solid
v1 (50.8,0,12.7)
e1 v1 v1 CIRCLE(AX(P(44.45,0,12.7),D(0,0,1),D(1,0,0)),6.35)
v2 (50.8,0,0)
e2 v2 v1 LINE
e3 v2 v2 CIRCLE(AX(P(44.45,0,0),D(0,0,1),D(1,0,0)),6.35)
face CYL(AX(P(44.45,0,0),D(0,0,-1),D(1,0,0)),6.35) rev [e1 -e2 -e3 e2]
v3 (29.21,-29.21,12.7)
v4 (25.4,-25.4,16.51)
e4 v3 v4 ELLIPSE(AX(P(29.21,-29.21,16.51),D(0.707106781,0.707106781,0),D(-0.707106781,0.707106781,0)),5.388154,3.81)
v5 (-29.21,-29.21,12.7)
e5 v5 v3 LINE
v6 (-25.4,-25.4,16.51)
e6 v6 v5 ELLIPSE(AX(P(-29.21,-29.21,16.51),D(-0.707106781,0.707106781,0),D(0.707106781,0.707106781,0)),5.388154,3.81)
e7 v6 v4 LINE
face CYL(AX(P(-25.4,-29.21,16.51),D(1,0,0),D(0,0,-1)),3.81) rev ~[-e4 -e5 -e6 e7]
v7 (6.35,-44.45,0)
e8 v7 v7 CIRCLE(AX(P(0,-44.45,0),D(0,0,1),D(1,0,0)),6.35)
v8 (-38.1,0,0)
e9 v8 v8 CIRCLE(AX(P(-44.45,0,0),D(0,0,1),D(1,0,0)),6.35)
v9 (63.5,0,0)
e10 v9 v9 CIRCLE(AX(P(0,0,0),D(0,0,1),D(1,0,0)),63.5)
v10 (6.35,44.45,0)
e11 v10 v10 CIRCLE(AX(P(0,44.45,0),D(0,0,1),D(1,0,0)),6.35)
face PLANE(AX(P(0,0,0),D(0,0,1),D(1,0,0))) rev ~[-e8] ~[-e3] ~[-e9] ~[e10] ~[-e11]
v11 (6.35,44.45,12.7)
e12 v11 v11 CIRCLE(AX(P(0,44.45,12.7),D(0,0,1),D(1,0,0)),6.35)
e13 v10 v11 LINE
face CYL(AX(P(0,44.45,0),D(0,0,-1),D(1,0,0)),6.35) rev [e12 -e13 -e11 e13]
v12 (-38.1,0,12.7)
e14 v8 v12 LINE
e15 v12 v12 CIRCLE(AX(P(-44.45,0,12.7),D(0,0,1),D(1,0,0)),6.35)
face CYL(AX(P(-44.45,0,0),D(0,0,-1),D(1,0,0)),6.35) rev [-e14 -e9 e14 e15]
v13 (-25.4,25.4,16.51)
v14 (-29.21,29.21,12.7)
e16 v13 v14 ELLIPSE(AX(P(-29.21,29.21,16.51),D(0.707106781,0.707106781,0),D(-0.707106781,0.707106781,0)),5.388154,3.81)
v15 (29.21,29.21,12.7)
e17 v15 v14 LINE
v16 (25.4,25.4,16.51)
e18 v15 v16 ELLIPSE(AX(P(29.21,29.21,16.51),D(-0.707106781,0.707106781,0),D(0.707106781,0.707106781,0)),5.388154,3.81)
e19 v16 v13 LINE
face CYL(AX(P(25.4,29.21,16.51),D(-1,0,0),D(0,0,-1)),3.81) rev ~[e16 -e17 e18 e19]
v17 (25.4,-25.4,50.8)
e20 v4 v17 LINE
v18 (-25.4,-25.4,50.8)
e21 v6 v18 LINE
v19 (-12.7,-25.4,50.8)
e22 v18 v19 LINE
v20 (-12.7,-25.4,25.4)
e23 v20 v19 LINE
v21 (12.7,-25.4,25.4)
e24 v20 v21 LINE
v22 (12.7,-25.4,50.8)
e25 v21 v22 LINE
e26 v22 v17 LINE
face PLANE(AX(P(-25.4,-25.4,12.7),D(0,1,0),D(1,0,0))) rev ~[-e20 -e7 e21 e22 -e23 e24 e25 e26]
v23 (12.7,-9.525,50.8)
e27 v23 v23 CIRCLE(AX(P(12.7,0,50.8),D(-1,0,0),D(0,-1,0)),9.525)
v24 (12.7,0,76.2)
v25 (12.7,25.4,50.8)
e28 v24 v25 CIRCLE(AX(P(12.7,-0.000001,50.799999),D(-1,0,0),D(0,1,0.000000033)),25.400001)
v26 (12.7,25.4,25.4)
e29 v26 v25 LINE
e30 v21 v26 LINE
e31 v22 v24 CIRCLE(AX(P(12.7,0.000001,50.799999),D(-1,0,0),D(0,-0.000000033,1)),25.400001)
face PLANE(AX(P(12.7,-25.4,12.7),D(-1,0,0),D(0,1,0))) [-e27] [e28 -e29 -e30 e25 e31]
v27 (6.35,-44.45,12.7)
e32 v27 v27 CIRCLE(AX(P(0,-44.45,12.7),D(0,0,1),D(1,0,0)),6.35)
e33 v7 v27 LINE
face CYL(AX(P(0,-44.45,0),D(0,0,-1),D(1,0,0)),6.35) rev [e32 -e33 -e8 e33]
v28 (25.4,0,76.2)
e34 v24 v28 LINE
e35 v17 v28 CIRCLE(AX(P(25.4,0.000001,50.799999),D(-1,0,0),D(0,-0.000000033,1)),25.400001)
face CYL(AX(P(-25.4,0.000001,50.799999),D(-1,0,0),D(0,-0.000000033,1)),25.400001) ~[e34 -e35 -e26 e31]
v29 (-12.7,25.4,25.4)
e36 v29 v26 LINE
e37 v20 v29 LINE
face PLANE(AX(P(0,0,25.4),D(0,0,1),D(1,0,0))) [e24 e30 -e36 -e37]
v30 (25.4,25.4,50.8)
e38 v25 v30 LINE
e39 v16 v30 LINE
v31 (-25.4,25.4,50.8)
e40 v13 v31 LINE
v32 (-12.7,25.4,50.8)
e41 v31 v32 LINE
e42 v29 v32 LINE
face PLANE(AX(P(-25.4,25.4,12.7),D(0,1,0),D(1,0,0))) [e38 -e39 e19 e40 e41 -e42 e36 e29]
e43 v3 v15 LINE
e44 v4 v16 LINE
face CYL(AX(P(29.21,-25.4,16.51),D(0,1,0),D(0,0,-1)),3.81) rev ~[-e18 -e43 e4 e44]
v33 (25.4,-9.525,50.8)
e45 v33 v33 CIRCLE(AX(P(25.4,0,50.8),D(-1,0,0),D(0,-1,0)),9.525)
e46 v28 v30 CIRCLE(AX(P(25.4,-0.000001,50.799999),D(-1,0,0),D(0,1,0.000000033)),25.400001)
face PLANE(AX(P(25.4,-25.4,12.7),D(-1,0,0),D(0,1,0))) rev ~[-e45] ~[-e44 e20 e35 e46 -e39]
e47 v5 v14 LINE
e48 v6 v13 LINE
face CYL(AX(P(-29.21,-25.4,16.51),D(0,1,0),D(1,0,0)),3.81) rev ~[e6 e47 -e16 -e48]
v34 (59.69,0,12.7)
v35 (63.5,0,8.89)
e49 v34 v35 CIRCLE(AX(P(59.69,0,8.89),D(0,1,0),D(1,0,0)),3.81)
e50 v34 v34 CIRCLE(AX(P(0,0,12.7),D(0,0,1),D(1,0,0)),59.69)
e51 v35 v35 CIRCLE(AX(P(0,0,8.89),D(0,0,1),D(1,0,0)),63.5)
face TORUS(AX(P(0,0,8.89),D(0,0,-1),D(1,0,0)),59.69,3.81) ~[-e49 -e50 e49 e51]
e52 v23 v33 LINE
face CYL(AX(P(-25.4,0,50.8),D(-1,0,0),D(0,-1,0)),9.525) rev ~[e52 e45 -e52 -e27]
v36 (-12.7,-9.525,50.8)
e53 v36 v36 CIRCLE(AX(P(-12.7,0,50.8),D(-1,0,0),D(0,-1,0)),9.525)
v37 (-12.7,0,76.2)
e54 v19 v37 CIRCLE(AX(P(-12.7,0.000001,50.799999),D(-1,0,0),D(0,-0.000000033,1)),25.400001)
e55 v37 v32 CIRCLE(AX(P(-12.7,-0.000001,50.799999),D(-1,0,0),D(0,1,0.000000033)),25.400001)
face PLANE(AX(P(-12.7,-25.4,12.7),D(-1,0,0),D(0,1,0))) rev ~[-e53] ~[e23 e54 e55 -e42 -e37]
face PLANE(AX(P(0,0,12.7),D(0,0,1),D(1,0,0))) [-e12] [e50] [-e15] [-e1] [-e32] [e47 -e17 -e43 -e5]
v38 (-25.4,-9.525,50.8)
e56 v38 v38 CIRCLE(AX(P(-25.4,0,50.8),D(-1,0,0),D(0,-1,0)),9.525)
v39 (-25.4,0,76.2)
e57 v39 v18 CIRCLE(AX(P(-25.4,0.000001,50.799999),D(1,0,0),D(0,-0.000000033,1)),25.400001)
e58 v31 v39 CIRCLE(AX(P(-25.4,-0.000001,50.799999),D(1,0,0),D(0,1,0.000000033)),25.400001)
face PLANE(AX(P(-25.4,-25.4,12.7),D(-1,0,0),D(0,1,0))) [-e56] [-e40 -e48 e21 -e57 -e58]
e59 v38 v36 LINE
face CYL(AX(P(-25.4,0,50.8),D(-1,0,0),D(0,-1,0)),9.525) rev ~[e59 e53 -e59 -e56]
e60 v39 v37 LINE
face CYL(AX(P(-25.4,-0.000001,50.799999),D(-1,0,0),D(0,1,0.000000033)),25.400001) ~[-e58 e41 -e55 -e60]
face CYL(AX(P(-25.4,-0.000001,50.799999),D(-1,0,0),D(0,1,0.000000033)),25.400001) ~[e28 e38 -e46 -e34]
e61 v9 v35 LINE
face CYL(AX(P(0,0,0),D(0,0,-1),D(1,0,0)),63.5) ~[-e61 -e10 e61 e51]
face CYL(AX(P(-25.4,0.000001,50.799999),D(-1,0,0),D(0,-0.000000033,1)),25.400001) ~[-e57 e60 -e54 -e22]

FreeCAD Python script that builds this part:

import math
import FreeCAD as App
import Part
import Sketcher
Q = App.Units.Quantity


def edges_at(feature, points):
    """Names of the edges that pass closest to the given points."""
    edges = feature.Shape.Edges
    near = lambda p: min(range(len(edges)), key=lambda i: edges[i].distToShape(Part.Vertex(*p))[0])
    return sorted({f"Edge{near(p) + 1}" for p in points})

doc = App.newDocument("Part")
body = doc.addObject("PartDesign::Body", "Body")

# Sketch on XY plane
sketch1 = body.newObject("Sketcher::SketchObject", "Sketch")
sketch1.AttachmentSupport = (doc.getObject("XY_Plane"), [""])
sketch1.MapMode = "FlatFace"
sketch1.addGeometry(Part.Circle(App.Vector(0, 0, 0), App.Vector(0, 0, 1), 64), False)
sketch1.addGeometry(Part.Circle(App.Vector(0, -44, 0), App.Vector(0, 0, 1), 6), False)
sketch1.addGeometry(Part.Circle(App.Vector(-44, 0, 0), App.Vector(0, 0, 1), 6), False)
sketch1.addGeometry(Part.Circle(App.Vector(44, 0, 0), App.Vector(0, 0, 1), 6), False)
sketch1.addGeometry(Part.Circle(App.Vector(0, 44, 0), App.Vector(0, 0, 1), 6), False)
sketch1.addConstraint(Sketcher.Constraint("Coincident", 0, 3, -1, 1))
sketch1.addConstraint(Sketcher.Constraint("Equal", 1, 2))
sketch1.addConstraint(Sketcher.Constraint("Equal", 2, 3))
sketch1.addConstraint(Sketcher.Constraint("Equal", 3, 4))
sketch1.addConstraint(Sketcher.Constraint("Symmetric", 2, 3, 3, 3, -1, 1))
sketch1.addConstraint(Sketcher.Constraint("Symmetric", 1, 3, 4, 3, -1, 1))
sketch1.addConstraint(Sketcher.Constraint("PointOnObject", 1, 3, -2))
sketch1.addConstraint(Sketcher.Constraint("PointOnObject", 2, 3, -1))
sketch1.addConstraint(Sketcher.Constraint("Diameter", 0, Q("5 in")))
sketch1.addConstraint(Sketcher.Constraint("Diameter", 1, Q("0.5 in")))
sketch1.addConstraint(Sketcher.Constraint("DistanceX", 2, 3, 3, 3, Q("3.5 in")))
sketch1.addConstraint(Sketcher.Constraint("DistanceY", 1, 3, 4, 3, Q("3.5 in")))
pad1 = body.newObject("PartDesign::Pad", "Pad")
pad1.Profile = sketch1
pad1.Length = Q("0.5 in")

# Sketch on XY plane
sketch2 = body.newObject("Sketcher::SketchObject", "Sketch001")
sketch2.AttachmentSupport = (doc.getObject("XY_Plane"), [""])
sketch2.MapMode = "FlatFace"
sketch2.AttachmentOffset = App.Placement(App.Vector(0, 0, 0.5 * 25.4), App.Rotation())
sketch2.addGeometry(Part.LineSegment(App.Vector(-13, 25, 0), App.Vector(-13, -25, 0)), False)
sketch2.addGeometry(Part.LineSegment(App.Vector(-13, -25, 0), App.Vector(13, -25, 0)), False)
sketch2.addGeometry(Part.LineSegment(App.Vector(13, -25, 0), App.Vector(13, 25, 0)), False)
sketch2.addGeometry(Part.LineSegment(App.Vector(13, 25, 0), App.Vector(-13, 25, 0)), False)
sketch2.addConstraint(Sketcher.Constraint("Coincident", 0, 2, 1, 1))
sketch2.addConstraint(Sketcher.Constraint("Coincident", 1, 2, 2, 1))
sketch2.addConstraint(Sketcher.Constraint("Coincident", 2, 2, 3, 1))
sketch2.addConstraint(Sketcher.Constraint("Coincident", 3, 2, 0, 1))
sketch2.addConstraint(Sketcher.Constraint("Vertical", 0))
sketch2.addConstraint(Sketcher.Constraint("Horizontal", 1))
sketch2.addConstraint(Sketcher.Constraint("Vertical", 2))
sketch2.addConstraint(Sketcher.Constraint("Horizontal", 3))
sketch2.addConstraint(Sketcher.Constraint("Symmetric", 0, 2, 2, 2, -1, 1))
sketch2.addConstraint(Sketcher.Constraint("DistanceX", 1, 1, 1, 2, Q("1 in")))
sketch2.addConstraint(Sketcher.Constraint("DistanceY", 0, 2, 0, 1, Q("2 in")))
pad2 = body.newObject("PartDesign::Pad", "Pad001")
pad2.Profile = sketch2
pad2.Length = Q("0.5 in")

# Sketch on XY plane
sketch3 = body.newObject("Sketcher::SketchObject", "Sketch002")
sketch3.AttachmentSupport = (doc.getObject("XY_Plane"), [""])
sketch3.MapMode = "FlatFace"
sketch3.AttachmentOffset = App.Placement(App.Vector(0, 0, 0.5 * 25.4), App.Rotation())
sketch3.addGeometry(Part.LineSegment(App.Vector(-25, 25, 0), App.Vector(-25, -25, 0)), False)
sketch3.addGeometry(Part.LineSegment(App.Vector(-25, -25, 0), App.Vector(-13, -25, 0)), False)
sketch3.addGeometry(Part.LineSegment(App.Vector(-13, -25, 0), App.Vector(-13, 25, 0)), False)
sketch3.addGeometry(Part.LineSegment(App.Vector(-13, 25, 0), App.Vector(-25, 25, 0)), False)
sketch3.addGeometry(Part.LineSegment(App.Vector(13, 25, 0), App.Vector(13, -25, 0)), False)
sketch3.addGeometry(Part.LineSegment(App.Vector(13, -25, 0), App.Vector(25, -25, 0)), False)
sketch3.addGeometry(Part.LineSegment(App.Vector(25, -25, 0), App.Vector(25, 25, 0)), False)
sketch3.addGeometry(Part.LineSegment(App.Vector(25, 25, 0), App.Vector(13, 25, 0)), False)
sketch3.addConstraint(Sketcher.Constraint("Coincident", 0, 2, 1, 1))
sketch3.addConstraint(Sketcher.Constraint("Coincident", 1, 2, 2, 1))
sketch3.addConstraint(Sketcher.Constraint("Coincident", 2, 2, 3, 1))
sketch3.addConstraint(Sketcher.Constraint("Coincident", 3, 2, 0, 1))
sketch3.addConstraint(Sketcher.Constraint("Coincident", 4, 2, 5, 1))
sketch3.addConstraint(Sketcher.Constraint("Coincident", 5, 2, 6, 1))
sketch3.addConstraint(Sketcher.Constraint("Coincident", 6, 2, 7, 1))
sketch3.addConstraint(Sketcher.Constraint("Coincident", 7, 2, 4, 1))
sketch3.addConstraint(Sketcher.Constraint("Vertical", 0))
sketch3.addConstraint(Sketcher.Constraint("Horizontal", 1))
sketch3.addConstraint(Sketcher.Constraint("Vertical", 2))
sketch3.addConstraint(Sketcher.Constraint("Horizontal", 3))
sketch3.addConstraint(Sketcher.Constraint("Vertical", 4))
sketch3.addConstraint(Sketcher.Constraint("Horizontal", 5))
sketch3.addConstraint(Sketcher.Constraint("Vertical", 6))
sketch3.addConstraint(Sketcher.Constraint("Horizontal", 7))
sketch3.addConstraint(Sketcher.Constraint("Symmetric", 2, 2, 4, 2, -1, 1))
sketch3.addConstraint(Sketcher.Constraint("Symmetric", 0, 2, 6, 2, -1, 1))
sketch3.addConstraint(Sketcher.Constraint("Horizontal", 1, 2, 4, 2))
sketch3.addConstraint(Sketcher.Constraint("DistanceY", 0, 2, 0, 1, Q("2 in")))
sketch3.addConstraint(Sketcher.Constraint("DistanceX", 1, 1, 1, 2, Q("0.5 in")))
sketch3.addConstraint(Sketcher.Constraint("DistanceX", 0, 2, -1, 1, Q("1 in")))
pad3 = body.newObject("PartDesign::Pad", "Pad002")
pad3.Profile = sketch3
pad3.Length = Q("2.5 in")

# Sketch on YZ plane
sketch4 = body.newObject("Sketcher::SketchObject", "Sketch003")
sketch4.AttachmentSupport = (doc.getObject("YZ_Plane"), [""])
sketch4.MapMode = "FlatFace"
sketch4.AttachmentOffset = App.Placement(App.Vector(0, 0, -1 * 25.4), App.Rotation())
sketch4.addGeometry(Part.Circle(App.Vector(0, 51, 0), App.Vector(0, 0, 1), 10), False)
sketch4.addGeometry(Part.LineSegment(App.Vector(-25, 76, 0), App.Vector(0, 76, 0)), False)
sketch4.addGeometry(Part.ArcOfCircle(Part.Circle(App.Vector(0, 51, 0), App.Vector(0, 0, 1), 25), math.radians(90), math.radians(180)), False)
sketch4.addGeometry(Part.LineSegment(App.Vector(-25, 51, 0), App.Vector(-25, 76, 0)), False)
sketch4.addGeometry(Part.LineSegment(App.Vector(25, 76, 0), App.Vector(25, 51, 0)), False)
sketch4.addGeometry(Part.ArcOfCircle(Part.Circle(App.Vector(0, 51, 0), App.Vector(0, 0, 1), 25), math.radians(0), math.radians(90)), False)
sketch4.addGeometry(Part.LineSegment(App.Vector(0, 76, 0), App.Vector(25, 76, 0)), False)
sketch4.addConstraint(Sketcher.Constraint("Tangent", 1, 2, 2, 1))
sketch4.addConstraint(Sketcher.Constraint("Tangent", 2, 2, 3, 1))
sketch4.addConstraint(Sketcher.Constraint("Coincident", 3, 2, 1, 1))
sketch4.addConstraint(Sketcher.Constraint("Tangent", 4, 2, 5, 1))
sketch4.addConstraint(Sketcher.Constraint("Tangent", 5, 2, 6, 1))
sketch4.addConstraint(Sketcher.Constraint("Coincident", 6, 2, 4, 1))
sketch4.addConstraint(Sketcher.Constraint("Horizontal", 1))
sketch4.addConstraint(Sketcher.Constraint("Vertical", 3))
sketch4.addConstraint(Sketcher.Constraint("Vertical", 4))
sketch4.addConstraint(Sketcher.Constraint("Horizontal", 6))
sketch4.addConstraint(Sketcher.Constraint("Coincident", 2, 3, 0, 3))
sketch4.addConstraint(Sketcher.Constraint("Coincident", 5, 3, 0, 3))
sketch4.addConstraint(Sketcher.Constraint("Equal", 2, 5))
sketch4.addConstraint(Sketcher.Constraint("PointOnObject", 0, 3, -2))
sketch4.addConstraint(Sketcher.Constraint("Radius", 2, Q("1 in")))
sketch4.addConstraint(Sketcher.Constraint("Diameter", 0, Q("0.75 in")))
sketch4.addConstraint(Sketcher.Constraint("DistanceY", -1, 1, 0, 3, Q("2 in")))
pocket1 = body.newObject("PartDesign::Pocket", "Pocket")
pocket1.Profile = sketch4
pocket1.Type = "ThroughAll"
pocket1.Reversed = True
doc.recompute()

fillet = body.newObject("PartDesign::Fillet", "Fillet")
fillet.Base = (pocket1, edges_at(pocket1, [
    (-63.5, 0, 12.7),
    (-25.4, 0, 12.7),
    (25.4, 0, 12.7),
    (0, -25.4, 12.7),
    (0, 25.4, 12.7),
]))
fillet.Radius = Q("0.15 in")

doc.recompute()
